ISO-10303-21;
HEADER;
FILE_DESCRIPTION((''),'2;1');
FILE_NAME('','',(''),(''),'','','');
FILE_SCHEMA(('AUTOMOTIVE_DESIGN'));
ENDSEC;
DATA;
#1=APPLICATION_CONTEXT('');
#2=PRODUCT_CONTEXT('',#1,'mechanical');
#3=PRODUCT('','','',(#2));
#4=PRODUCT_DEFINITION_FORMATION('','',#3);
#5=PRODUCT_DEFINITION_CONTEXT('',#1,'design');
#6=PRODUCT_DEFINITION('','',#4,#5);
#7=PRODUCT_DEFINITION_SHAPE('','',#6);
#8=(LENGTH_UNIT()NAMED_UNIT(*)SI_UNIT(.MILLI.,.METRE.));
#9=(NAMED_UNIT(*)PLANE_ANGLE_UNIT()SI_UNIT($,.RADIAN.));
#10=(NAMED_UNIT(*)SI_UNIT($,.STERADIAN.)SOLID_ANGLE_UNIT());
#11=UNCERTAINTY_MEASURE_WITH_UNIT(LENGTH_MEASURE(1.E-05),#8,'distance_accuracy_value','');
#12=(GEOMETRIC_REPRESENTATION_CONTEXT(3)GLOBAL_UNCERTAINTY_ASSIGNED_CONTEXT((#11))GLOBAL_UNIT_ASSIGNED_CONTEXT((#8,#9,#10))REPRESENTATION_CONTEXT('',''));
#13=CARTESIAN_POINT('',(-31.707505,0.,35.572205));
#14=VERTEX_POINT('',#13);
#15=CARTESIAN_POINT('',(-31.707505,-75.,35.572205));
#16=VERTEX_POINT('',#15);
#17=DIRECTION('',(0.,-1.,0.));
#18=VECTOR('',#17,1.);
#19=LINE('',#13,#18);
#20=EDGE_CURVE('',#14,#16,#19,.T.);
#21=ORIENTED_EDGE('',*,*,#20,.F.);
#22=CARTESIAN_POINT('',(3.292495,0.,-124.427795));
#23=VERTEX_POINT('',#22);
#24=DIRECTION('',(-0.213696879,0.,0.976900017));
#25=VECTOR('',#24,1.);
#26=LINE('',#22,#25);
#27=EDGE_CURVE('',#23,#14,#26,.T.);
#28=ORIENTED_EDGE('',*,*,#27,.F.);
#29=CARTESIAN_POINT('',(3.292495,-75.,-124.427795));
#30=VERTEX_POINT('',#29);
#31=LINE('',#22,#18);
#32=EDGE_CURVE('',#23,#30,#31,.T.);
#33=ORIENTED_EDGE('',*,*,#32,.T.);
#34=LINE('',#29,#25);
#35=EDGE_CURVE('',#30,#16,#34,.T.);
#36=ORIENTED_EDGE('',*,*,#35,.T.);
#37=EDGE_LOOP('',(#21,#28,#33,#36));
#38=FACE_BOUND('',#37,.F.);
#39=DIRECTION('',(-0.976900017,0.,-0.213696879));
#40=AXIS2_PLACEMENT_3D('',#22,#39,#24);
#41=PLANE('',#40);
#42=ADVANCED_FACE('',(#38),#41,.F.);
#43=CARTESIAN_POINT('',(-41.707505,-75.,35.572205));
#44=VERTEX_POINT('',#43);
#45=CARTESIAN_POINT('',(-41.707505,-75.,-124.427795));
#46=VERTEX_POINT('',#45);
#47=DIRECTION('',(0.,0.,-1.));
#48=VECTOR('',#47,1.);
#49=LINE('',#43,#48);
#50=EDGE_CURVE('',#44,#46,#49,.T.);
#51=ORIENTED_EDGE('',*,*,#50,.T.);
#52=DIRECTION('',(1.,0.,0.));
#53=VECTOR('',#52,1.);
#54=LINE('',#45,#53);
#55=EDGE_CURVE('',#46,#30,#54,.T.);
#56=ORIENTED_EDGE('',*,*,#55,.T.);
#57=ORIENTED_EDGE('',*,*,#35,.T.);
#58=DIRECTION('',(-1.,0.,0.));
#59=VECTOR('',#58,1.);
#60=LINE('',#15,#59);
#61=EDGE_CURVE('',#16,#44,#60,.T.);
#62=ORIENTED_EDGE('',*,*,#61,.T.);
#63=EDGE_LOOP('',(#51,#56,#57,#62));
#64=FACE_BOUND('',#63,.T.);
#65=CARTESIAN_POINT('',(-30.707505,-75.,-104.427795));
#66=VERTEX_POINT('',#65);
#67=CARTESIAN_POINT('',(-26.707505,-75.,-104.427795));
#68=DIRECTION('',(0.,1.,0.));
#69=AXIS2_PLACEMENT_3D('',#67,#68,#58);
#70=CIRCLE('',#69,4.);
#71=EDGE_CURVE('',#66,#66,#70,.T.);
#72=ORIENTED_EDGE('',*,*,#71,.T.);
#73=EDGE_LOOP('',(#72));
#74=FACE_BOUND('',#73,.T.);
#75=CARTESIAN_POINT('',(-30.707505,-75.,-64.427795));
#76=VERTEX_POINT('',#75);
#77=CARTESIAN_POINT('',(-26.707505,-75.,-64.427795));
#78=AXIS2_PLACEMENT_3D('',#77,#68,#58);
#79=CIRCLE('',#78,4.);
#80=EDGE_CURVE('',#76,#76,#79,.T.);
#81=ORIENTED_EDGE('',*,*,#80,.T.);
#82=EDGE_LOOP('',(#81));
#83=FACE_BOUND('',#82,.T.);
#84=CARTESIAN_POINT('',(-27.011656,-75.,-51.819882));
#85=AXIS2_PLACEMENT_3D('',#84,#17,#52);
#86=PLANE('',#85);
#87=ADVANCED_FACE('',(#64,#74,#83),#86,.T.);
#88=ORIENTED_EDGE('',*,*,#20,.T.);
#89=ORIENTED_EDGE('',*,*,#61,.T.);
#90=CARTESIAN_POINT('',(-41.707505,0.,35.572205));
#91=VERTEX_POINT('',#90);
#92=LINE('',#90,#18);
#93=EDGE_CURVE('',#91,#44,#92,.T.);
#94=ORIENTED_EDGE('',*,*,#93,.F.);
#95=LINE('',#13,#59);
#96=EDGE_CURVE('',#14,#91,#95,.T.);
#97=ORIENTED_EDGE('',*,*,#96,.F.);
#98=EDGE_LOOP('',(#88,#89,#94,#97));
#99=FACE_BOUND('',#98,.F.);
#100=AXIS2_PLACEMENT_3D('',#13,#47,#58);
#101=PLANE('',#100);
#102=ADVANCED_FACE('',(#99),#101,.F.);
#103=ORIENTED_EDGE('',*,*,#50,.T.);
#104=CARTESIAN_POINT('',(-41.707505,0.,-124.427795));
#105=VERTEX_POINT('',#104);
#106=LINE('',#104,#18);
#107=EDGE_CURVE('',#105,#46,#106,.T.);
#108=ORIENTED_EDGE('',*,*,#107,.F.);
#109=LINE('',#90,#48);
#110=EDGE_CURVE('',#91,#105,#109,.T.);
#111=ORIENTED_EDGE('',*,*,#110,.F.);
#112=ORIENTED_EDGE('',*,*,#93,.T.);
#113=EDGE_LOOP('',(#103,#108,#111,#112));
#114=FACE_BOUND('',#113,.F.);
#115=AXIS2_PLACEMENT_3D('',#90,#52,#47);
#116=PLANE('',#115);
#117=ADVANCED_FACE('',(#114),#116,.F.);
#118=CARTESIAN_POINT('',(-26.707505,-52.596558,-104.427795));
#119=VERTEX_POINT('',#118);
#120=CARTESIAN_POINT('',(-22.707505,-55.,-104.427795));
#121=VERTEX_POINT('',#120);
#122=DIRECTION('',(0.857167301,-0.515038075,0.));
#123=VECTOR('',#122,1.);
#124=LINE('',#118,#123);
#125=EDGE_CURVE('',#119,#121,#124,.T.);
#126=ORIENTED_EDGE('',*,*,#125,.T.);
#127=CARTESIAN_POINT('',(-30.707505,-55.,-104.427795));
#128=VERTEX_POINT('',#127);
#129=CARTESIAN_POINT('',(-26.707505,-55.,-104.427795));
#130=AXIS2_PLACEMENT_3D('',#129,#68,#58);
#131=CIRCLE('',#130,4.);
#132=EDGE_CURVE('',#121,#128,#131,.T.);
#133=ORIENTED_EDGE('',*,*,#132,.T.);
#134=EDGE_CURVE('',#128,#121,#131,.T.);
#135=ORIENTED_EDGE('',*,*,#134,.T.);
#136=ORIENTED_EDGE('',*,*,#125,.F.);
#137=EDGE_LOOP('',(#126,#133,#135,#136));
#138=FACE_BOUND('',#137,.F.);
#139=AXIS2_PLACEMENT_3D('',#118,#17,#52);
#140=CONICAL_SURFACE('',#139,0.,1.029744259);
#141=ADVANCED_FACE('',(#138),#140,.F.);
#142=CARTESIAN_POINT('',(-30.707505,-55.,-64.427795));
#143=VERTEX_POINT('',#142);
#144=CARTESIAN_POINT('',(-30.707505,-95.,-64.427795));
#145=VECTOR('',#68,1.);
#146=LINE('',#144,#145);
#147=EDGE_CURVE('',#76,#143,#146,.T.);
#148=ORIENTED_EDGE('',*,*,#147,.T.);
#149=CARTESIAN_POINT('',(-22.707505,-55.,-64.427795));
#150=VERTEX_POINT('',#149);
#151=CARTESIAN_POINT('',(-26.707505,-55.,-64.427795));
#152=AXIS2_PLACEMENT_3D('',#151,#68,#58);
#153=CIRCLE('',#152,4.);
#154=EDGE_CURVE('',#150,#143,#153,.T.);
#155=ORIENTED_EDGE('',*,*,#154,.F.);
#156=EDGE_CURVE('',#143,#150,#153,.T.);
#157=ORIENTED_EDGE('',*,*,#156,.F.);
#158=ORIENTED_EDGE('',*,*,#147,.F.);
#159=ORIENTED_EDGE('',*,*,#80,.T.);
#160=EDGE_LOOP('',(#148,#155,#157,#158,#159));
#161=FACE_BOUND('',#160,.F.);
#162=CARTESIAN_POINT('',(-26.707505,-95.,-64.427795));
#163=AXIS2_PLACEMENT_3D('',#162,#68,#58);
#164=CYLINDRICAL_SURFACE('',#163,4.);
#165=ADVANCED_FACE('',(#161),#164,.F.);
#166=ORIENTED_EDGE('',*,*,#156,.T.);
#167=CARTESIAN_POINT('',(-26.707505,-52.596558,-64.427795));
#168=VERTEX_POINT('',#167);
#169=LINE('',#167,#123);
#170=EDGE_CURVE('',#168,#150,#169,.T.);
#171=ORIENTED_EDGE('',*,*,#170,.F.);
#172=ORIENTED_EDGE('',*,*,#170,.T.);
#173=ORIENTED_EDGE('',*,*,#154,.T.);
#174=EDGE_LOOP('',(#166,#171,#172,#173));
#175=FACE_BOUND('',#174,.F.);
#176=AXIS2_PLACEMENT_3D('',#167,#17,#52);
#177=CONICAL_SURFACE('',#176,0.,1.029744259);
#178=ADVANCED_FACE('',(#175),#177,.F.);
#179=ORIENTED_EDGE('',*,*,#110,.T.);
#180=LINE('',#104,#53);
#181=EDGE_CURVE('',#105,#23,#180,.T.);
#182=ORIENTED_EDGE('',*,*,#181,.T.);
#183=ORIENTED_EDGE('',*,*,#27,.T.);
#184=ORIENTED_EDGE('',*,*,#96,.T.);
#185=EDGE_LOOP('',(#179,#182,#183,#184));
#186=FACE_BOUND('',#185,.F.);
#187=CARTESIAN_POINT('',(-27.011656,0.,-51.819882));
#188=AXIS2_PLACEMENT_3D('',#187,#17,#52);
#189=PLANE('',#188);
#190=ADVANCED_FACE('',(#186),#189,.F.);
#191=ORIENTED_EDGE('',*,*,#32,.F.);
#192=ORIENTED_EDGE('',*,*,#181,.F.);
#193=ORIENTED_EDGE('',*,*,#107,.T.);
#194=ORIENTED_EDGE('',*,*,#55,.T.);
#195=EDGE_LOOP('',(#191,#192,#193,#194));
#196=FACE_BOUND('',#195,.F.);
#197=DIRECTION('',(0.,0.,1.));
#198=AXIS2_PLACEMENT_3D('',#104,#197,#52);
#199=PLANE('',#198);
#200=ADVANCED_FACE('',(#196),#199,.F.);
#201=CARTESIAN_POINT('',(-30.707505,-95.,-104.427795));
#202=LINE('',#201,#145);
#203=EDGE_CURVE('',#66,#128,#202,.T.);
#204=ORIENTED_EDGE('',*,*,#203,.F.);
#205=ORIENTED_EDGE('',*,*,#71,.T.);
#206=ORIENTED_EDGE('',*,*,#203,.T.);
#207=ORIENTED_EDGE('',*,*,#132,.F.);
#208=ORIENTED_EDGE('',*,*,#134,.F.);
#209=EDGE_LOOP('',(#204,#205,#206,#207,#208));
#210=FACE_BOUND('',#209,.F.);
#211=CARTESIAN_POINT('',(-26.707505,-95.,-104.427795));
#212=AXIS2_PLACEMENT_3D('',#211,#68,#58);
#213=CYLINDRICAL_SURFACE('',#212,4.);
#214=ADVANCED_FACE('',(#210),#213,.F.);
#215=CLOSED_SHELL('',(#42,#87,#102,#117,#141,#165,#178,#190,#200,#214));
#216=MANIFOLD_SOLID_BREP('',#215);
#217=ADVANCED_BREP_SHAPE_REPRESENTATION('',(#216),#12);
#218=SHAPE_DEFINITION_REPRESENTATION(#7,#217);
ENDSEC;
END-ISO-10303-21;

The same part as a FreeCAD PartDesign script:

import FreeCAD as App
import Part
import Sketcher

doc = App.newDocument("Part")
body = doc.addObject("PartDesign::Body", "Body")

# Sketch on XZ plane
sketch1 = doc.addObject("Sketcher::SketchObject", "Sketch")
body.addObject(sketch1)
sketch1.AttachmentSupport = (doc.XZ_Plane, [""])
sketch1.MapMode = "FlatFace"
sketch1.addGeometry(Part.LineSegment(App.Vector(-31.707505, 35.572205, 0), App.Vector(-41.707505, 35.572205, 0)), False)
sketch1.addGeometry(Part.LineSegment(App.Vector(-41.707505, 35.572205, 0), App.Vector(-41.707505, -124.427795, 0)), False)
sketch1.addGeometry(Part.LineSegment(App.Vector(-41.707505, -124.427795, 0), App.Vector(3.292495, -124.427795, 0)), False)
sketch1.addGeometry(Part.LineSegment(App.Vector(3.292495, -124.427795, 0), App.Vector(-31.707505, 35.572205, 0)), False)
sketch1.addConstraint(Sketcher.Constraint("Coincident", 0, 2, 1, 1))
sketch1.addConstraint(Sketcher.Constraint("Coincident", 1, 2, 2, 1))
sketch1.addConstraint(Sketcher.Constraint("Coincident", 2, 2, 3, 1))
sketch1.addConstraint(Sketcher.Constraint("Coincident", 3, 2, 0, 1))
sketch1.addConstraint(Sketcher.Constraint("Horizontal", 0))
sketch1.addConstraint(Sketcher.Constraint("Vertical", 1))
sketch1.addConstraint(Sketcher.Constraint("Horizontal", 2))
sketch1.addConstraint(Sketcher.Constraint("DistanceX", 0, 2, 0, 1, 10.0))
sketch1.addConstraint(Sketcher.Constraint("DistanceX", 2, 1, 2, 2, 45.0))
sketch1.addConstraint(Sketcher.Constraint("DistanceY", 1, 2, 1, 1, 160.0))
sketch1.addConstraint(Sketcher.Constraint("DistanceX", 0, 2, -1, 1, 41.707505))
sketch1.addConstraint(Sketcher.Constraint("DistanceY", -1, 1, 0, 2, 35.572205))
pad1 = doc.addObject("PartDesign::Pad", "Pad")
body.addObject(pad1)
pad1.Profile = sketch1
pad1.Length = 75

# Sketch on XZ plane
sketch2 = doc.addObject("Sketcher::SketchObject", "Sketch001")
body.addObject(sketch2)
sketch2.AttachmentSupport = (doc.XZ_Plane, [""])
sketch2.MapMode = "FlatFace"
sketch2.AttachmentOffset = App.Placement(App.Vector(0, 0, 75), App.Rotation())
sketch2.addGeometry(Part.Circle(App.Vector(-26.707505, -64.427795, 0), App.Vector(0, 0, 1), 4), False)
sketch2.addGeometry(Part.Circle(App.Vector(-26.707505, -104.427795, 0), App.Vector(0, 0, 1), 4), False)
sketch2.addConstraint(Sketcher.Constraint("Equal", 0, 1))
sketch2.addConstraint(Sketcher.Constraint("Vertical", 0, 3, 1, 3))
sketch2.addConstraint(Sketcher.Constraint("Diameter", 0, 8.0))
sketch2.addConstraint(Sketcher.Constraint("DistanceY", 1, 3, 0, 3, 40.0))
sketch2.addConstraint(Sketcher.Constraint("DistanceX", 0, 3, -1, 1, 26.707505))
sketch2.addConstraint(Sketcher.Constraint("DistanceY", 0, 3, -1, 1, 64.427795))
doc.recompute()
hole = doc.addObject("PartDesign::Hole", "Hole")
body.addObject(hole)
hole.Profile = sketch2
hole.ThreadType = "None"
hole.Diameter = 8
hole.DepthType = "Dimension"
hole.Depth = 20
hole.DrillPoint = "Angled"
hole.DrillPointAngle = 118

doc.recompute()
